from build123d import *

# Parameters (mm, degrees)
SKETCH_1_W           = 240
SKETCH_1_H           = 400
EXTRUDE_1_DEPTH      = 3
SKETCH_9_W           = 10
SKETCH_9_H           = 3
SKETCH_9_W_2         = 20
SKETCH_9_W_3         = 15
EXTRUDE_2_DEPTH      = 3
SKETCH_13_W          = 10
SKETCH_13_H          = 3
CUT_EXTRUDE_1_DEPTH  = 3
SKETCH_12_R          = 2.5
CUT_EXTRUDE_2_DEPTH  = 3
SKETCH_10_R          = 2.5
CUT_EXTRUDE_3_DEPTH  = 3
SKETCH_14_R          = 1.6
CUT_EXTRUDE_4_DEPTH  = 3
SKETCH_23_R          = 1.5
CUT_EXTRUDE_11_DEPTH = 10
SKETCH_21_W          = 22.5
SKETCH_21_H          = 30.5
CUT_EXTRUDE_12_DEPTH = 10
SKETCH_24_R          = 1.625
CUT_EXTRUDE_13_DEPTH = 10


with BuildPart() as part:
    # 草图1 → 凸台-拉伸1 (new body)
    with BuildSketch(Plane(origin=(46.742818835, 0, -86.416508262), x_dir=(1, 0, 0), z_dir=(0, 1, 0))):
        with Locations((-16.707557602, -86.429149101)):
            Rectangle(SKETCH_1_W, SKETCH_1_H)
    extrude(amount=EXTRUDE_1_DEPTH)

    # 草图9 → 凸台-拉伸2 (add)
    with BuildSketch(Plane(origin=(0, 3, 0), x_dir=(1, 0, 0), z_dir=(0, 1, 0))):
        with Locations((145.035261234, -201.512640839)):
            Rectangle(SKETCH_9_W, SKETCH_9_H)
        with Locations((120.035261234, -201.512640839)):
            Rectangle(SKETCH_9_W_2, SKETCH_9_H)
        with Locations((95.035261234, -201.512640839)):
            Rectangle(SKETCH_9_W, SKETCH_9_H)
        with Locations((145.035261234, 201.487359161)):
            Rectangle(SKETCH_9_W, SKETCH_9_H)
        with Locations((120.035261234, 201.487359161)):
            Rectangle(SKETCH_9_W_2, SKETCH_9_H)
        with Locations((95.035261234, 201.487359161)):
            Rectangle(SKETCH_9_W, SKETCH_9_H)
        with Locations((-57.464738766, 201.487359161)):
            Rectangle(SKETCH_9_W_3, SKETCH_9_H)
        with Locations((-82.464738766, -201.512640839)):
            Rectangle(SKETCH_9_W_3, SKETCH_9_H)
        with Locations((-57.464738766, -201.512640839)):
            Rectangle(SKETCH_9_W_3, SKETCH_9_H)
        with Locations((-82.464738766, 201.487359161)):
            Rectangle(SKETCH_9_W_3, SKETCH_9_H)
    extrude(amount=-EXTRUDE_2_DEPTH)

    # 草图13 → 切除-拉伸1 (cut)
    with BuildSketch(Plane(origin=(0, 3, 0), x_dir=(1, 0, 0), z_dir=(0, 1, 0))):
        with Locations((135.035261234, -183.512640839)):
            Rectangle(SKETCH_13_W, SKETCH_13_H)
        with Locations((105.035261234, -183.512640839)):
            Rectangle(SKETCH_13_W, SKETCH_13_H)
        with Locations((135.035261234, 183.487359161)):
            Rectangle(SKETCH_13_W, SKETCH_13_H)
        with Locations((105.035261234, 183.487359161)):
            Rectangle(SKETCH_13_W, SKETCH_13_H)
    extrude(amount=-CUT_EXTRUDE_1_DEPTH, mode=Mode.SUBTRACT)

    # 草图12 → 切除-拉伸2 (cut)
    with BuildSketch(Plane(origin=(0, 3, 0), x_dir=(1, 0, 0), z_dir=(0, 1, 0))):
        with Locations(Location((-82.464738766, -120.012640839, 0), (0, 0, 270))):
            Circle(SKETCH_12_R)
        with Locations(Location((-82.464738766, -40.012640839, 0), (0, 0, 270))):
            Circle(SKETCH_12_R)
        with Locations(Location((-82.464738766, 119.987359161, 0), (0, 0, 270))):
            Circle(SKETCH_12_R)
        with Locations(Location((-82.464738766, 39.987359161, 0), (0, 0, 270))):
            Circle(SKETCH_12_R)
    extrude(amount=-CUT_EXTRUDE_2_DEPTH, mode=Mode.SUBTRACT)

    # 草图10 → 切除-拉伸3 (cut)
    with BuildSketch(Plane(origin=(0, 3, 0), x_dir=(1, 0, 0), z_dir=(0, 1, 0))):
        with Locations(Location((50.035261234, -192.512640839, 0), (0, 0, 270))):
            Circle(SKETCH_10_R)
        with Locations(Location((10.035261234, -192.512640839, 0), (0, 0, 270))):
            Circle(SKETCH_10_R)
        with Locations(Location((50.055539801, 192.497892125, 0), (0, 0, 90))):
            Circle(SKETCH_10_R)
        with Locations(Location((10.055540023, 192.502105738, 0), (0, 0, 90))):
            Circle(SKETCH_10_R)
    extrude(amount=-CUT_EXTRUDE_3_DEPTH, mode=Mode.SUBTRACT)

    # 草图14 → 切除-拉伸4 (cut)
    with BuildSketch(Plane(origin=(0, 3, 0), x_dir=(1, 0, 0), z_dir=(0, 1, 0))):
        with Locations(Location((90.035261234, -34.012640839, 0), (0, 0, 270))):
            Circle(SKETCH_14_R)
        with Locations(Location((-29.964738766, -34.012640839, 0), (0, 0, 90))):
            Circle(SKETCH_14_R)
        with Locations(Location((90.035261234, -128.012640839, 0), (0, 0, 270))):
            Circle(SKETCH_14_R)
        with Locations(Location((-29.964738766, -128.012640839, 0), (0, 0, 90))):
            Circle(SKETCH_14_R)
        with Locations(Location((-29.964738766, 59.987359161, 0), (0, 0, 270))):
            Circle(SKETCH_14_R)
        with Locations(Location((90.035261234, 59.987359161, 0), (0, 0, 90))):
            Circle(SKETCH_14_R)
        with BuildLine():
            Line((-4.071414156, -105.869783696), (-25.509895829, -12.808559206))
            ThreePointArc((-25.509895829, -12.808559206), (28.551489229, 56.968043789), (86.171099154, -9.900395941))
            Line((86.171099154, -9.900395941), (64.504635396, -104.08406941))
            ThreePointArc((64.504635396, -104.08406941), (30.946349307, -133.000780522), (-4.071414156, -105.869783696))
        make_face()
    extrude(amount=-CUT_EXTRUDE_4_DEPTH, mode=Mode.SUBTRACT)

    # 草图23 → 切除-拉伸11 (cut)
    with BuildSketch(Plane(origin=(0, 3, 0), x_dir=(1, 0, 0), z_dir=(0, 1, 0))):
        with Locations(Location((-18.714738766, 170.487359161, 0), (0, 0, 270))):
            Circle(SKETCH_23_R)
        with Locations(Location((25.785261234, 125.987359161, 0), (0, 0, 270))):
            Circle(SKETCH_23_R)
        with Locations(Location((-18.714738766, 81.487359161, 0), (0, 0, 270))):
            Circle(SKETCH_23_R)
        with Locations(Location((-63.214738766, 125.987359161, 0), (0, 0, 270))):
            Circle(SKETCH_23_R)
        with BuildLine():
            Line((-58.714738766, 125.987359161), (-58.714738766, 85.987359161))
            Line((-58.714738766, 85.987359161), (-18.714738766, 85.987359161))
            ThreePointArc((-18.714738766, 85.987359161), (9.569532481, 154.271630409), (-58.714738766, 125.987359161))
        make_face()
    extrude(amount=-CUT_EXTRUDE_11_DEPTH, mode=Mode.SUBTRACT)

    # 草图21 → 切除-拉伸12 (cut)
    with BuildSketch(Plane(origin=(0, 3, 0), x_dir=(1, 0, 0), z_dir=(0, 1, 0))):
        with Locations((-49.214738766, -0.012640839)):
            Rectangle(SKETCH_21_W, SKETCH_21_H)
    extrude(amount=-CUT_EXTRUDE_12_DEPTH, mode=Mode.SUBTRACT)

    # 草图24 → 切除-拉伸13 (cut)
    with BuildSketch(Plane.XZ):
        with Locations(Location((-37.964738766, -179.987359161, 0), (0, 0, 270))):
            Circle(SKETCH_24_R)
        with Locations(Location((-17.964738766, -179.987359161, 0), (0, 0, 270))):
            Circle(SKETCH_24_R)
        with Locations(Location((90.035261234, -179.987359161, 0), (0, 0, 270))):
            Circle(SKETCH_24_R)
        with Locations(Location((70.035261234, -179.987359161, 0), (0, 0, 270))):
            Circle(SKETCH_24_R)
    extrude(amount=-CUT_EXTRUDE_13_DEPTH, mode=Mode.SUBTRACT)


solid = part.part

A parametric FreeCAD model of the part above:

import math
import FreeCAD as App
import Part
import Sketcher
Q = App.Units.Quantity

doc = App.newDocument("Part")
params = doc.addObject("Spreadsheet::Sheet", "Params")
for row, (alias, value) in enumerate([
    ("sketch1_width", "240 mm"),
    ("sketch1_height", "400 mm"),
    ("pad1_length", "3 mm"),
    ("sketch2_width", "10 mm"),
    ("sketch2_width2", "20 mm"),
    ("sketch2_width3", "15 mm"),
    ("sketch2_height", "3 mm"),
    ("pad2_length", "3 mm"),
    ("sketch3_width", "10 mm"),
    ("sketch3_height", "3 mm"),
    ("pocket1_length", "3 mm"),
    ("sketch4_diameter", "5 mm"),
    ("pocket2_length", "3 mm"),
    ("sketch5_diameter", "5 mm"),
    ("pocket3_length", "3 mm"),
    ("sketch6_radius", "35 mm"),
    ("sketch6_radius2", "57 mm"),
    ("sketch6_diameter", "3.2 mm"),
    ("pocket4_length", "3 mm"),
    ("sketch7_diameter", "3 mm"),
    ("sketch7_radius", "40 mm"),
    ("pocket5_length", "10 mm"),
    ("sketch8_width", "22.5 mm"),
    ("sketch8_height", "30.5 mm"),
    ("pocket6_length", "10 mm"),
    ("sketch9_diameter", "3.25 mm"),
    ("pocket7_length", "10 mm"),
], start=1):
    params.set(f"A{row}", alias)
    params.set(f"B{row}", "=" + value)
    params.setAlias(f"B{row}", alias)

body = doc.addObject("PartDesign::Body", "Body")

# Sketch on XZ plane
sketch1 = doc.addObject("Sketcher::SketchObject", "Sketch")
body.addObject(sketch1)
sketch1.AttachmentSupport = (doc.XZ_Plane, [""])
sketch1.MapMode = "FlatFace"
sketch1.addGeometry(Part.LineSegment(App.Vector(-90, -200, 0), App.Vector(-90, 200, 0)), False)
sketch1.addGeometry(Part.LineSegment(App.Vector(-90, 200, 0), App.Vector(150, 200, 0)), False)
sketch1.addGeometry(Part.LineSegment(App.Vector(150, 200, 0), App.Vector(150, -200, 0)), False)
sketch1.addGeometry(Part.LineSegment(App.Vector(150, -200, 0), App.Vector(-90, -200, 0)), False)
sketch1.addConstraint(Sketcher.Constraint("Coincident", 0, 2, 1, 1))
sketch1.addConstraint(Sketcher.Constraint("Coincident", 1, 2, 2, 1))
sketch1.addConstraint(Sketcher.Constraint("Coincident", 2, 2, 3, 1))
sketch1.addConstraint(Sketcher.Constraint("Coincident", 3, 2, 0, 1))
sketch1.addConstraint(Sketcher.Constraint("Vertical", 0))
sketch1.addConstraint(Sketcher.Constraint("Horizontal", 1))
sketch1.addConstraint(Sketcher.Constraint("Vertical", 2))
sketch1.addConstraint(Sketcher.Constraint("Horizontal", 3))
sketch1.addConstraint(Sketcher.Constraint("DistanceX", 1, 1, 1, 2, Q("240 mm")))
sketch1.addConstraint(Sketcher.Constraint("DistanceY", 0, 1, 0, 2, Q("400 mm")))
sketch1.addConstraint(Sketcher.Constraint("DistanceX", 0, 2, -1, 1, Q("89.964739 mm")))
sketch1.addConstraint(Sketcher.Constraint("DistanceY", -1, 1, 0, 2, Q("200.012641 mm")))
sketch1.setExpression("Constraints[8]", "Params.sketch1_width")
sketch1.setExpression("Constraints[9]", "Params.sketch1_height")
pad1 = doc.addObject("PartDesign::Pad", "Pad")
body.addObject(pad1)
pad1.Profile = sketch1
pad1.setExpression("Length", "Params.pad1_length")
pad1.Reversed = True

# Sketch on XZ plane
sketch2 = doc.addObject("Sketcher::SketchObject", "Sketch001")
body.addObject(sketch2)
sketch2.AttachmentSupport = (doc.XZ_Plane, [""])
sketch2.MapMode = "FlatFace"
sketch2.AttachmentOffset = App.Placement(App.Vector(0, 0, -3), App.Rotation())
sketch2.addGeometry(Part.LineSegment(App.Vector(140, 200, 0), App.Vector(140, 203, 0)), False)
sketch2.addGeometry(Part.LineSegment(App.Vector(140, 203, 0), App.Vector(150, 203, 0)), False)
sketch2.addGeometry(Part.LineSegment(App.Vector(150, 203, 0), App.Vector(150, 200, 0)), False)
sketch2.addGeometry(Part.LineSegment(App.Vector(150, 200, 0), App.Vector(140, 200, 0)), False)
sketch2.addGeometry(Part.LineSegment(App.Vector(110, 200, 0), App.Vector(110, 203, 0)), False)
sketch2.addGeometry(Part.LineSegment(App.Vector(110, 203, 0), App.Vector(130, 203, 0)), False)
sketch2.addGeometry(Part.LineSegment(App.Vector(130, 203, 0), App.Vector(130, 200, 0)), False)
sketch2.addGeometry(Part.LineSegment(App.Vector(130, 200, 0), App.Vector(110, 200, 0)), False)
sketch2.addGeometry(Part.LineSegment(App.Vector(90, 200, 0), App.Vector(90, 203, 0)), False)
sketch2.addGeometry(Part.LineSegment(App.Vector(90, 203, 0), App.Vector(100, 203, 0)), False)
sketch2.addGeometry(Part.LineSegment(App.Vector(100, 203, 0), App.Vector(100, 200, 0)), False)
sketch2.addGeometry(Part.LineSegment(App.Vector(100, 200, 0), App.Vector(90, 200, 0)), False)
sketch2.addGeometry(Part.LineSegment(App.Vector(140, -203, 0), App.Vector(140, -200, 0)), False)
sketch2.addGeometry(Part.LineSegment(App.Vector(140, -200, 0), App.Vector(150, -200, 0)), False)
sketch2.addGeometry(Part.LineSegment(App.Vector(150, -200, 0), App.Vector(150, -203, 0)), False)
sketch2.addGeometry(Part.LineSegment(App.Vector(150, -203, 0), App.Vector(140, -203, 0)), False)
sketch2.addGeometry(Part.LineSegment(App.Vector(110, -203, 0), App.Vector(110, -200, 0)), False)
sketch2.addGeometry(Part.LineSegment(App.Vector(110, -200, 0), App.Vector(130, -200, 0)), False)
sketch2.addGeometry(Part.LineSegment(App.Vector(130, -200, 0), App.Vector(130, -203, 0)), False)
sketch2.addGeometry(Part.LineSegment(App.Vector(130, -203, 0), App.Vector(110, -203, 0)), False)
sketch2.addGeometry(Part.LineSegment(App.Vector(90, -203, 0), App.Vector(90, -200, 0)), False)
sketch2.addGeometry(Part.LineSegment(App.Vector(90, -200, 0), App.Vector(100, -200, 0)), False)
sketch2.addGeometry(Part.LineSegment(App.Vector(100, -200, 0), App.Vector(100, -203, 0)), False)
sketch2.addGeometry(Part.LineSegment(App.Vector(100, -203, 0), App.Vector(90, -203, 0)), False)
sketch2.addGeometry(Part.LineSegment(App.Vector(-65, -203, 0), App.Vector(-65, -200, 0)), False)
sketch2.addGeometry(Part.LineSegment(App.Vector(-65, -200, 0), App.Vector(-50, -200, 0)), False)
sketch2.addGeometry(Part.LineSegment(App.Vector(-50, -200, 0), App.Vector(-50, -203, 0)), False)
sketch2.addGeometry(Part.LineSegment(App.Vector(-50, -203, 0), App.Vector(-65, -203, 0)), False)
sketch2.addGeometry(Part.LineSegment(App.Vector(-90, 200, 0), App.Vector(-90, 203, 0)), False)
sketch2.addGeometry(Part.LineSegment(App.Vector(-90, 203, 0), App.Vector(-75, 203, 0)), False)
sketch2.addGeometry(Part.LineSegment(App.Vector(-75, 203, 0), App.Vector(-75, 200, 0)), False)
sketch2.addGeometry(Part.LineSegment(App.Vector(-75, 200, 0), App.Vector(-90, 200, 0)), False)
sketch2.addGeometry(Part.LineSegment(App.Vector(-65, 200, 0), App.Vector(-65, 203, 0)), False)
sketch2.addGeometry(Part.LineSegment(App.Vector(-65, 203, 0), App.Vector(-50, 203, 0)), False)
sketch2.addGeometry(Part.LineSegment(App.Vector(-50, 203, 0), App.Vector(-50, 200, 0)), False)
sketch2.addGeometry(Part.LineSegment(App.Vector(-50, 200, 0), App.Vector(-65, 200, 0)), False)
sketch2.addGeometry(Part.LineSegment(App.Vector(-90, -203, 0), App.Vector(-90, -200, 0)), False)
sketch2.addGeometry(Part.LineSegment(App.Vector(-90, -200, 0), App.Vector(-75, -200, 0)), False)
sketch2.addGeometry(Part.LineSegment(App.Vector(-75, -200, 0), App.Vector(-75, -203, 0)), False)
sketch2.addGeometry(Part.LineSegment(App.Vector(-75, -203, 0), App.Vector(-90, -203, 0)), False)
sketch2.addConstraint(Sketcher.Constraint("Coincident", 0, 2, 1, 1))
sketch2.addConstraint(Sketcher.Constraint("Coincident", 1, 2, 2, 1))
sketch2.addConstraint(Sketcher.Constraint("Coincident", 2, 2, 3, 1))
sketch2.addConstraint(Sketcher.Constraint("Coincident", 3, 2, 0, 1))
sketch2.addConstraint(Sketcher.Constraint("Coincident", 4, 2, 5, 1))
sketch2.addConstraint(Sketcher.Constraint("Coincident", 5, 2, 6, 1))
sketch2.addConstraint(Sketcher.Constraint("Coincident", 6, 2, 7, 1))
sketch2.addConstraint(Sketcher.Constraint("Coincident", 7, 2, 4, 1))
sketch2.addConstraint(Sketcher.Constraint("Coincident", 8, 2, 9, 1))
sketch2.addConstraint(Sketcher.Constraint("Coincident", 9, 2, 10, 1))
sketch2.addConstraint(Sketcher.Constraint("Coincident", 10, 2, 11, 1))
sketch2.addConstraint(Sketcher.Constraint("Coincident", 11, 2, 8, 1))
sketch2.addConstraint(Sketcher.Constraint("Coincident", 12, 2, 13, 1))
sketch2.addConstraint(Sketcher.Constraint("Coincident", 13, 2, 14, 1))
sketch2.addConstraint(Sketcher.Constraint("Coincident", 14, 2, 15, 1))
sketch2.addConstraint(Sketcher.Constraint("Coincident", 15, 2, 12, 1))
sketch2.addConstraint(Sketcher.Constraint("Coincident", 16, 2, 17, 1))
sketch2.addConstraint(Sketcher.Constraint("Coincident", 17, 2, 18, 1))
sketch2.addConstraint(Sketcher.Constraint("Coincident", 18, 2, 19, 1))
sketch2.addConstraint(Sketcher.Constraint("Coincident", 19, 2, 16, 1))
sketch2.addConstraint(Sketcher.Constraint("Coincident", 20, 2, 21, 1))
sketch2.addConstraint(Sketcher.Constraint("Coincident", 21, 2, 22, 1))
sketch2.addConstraint(Sketcher.Constraint("Coincident", 22, 2, 23, 1))
sketch2.addConstraint(Sketcher.Constraint("Coincident", 23, 2, 20, 1))
sketch2.addConstraint(Sketcher.Constraint("Coincident", 24, 2, 25, 1))
sketch2.addConstraint(Sketcher.Constraint("Coincident", 25, 2, 26, 1))
sketch2.addConstraint(Sketcher.Constraint("Coincident", 26, 2, 27, 1))
sketch2.addConstraint(Sketcher.Constraint("Coincident", 27, 2, 24, 1))
sketch2.addConstraint(Sketcher.Constraint("Coincident", 28, 2, 29, 1))
sketch2.addConstraint(Sketcher.Constraint("Coincident", 29, 2, 30, 1))
sketch2.addConstraint(Sketcher.Constraint("Coincident", 30, 2, 31, 1))
sketch2.addConstraint(Sketcher.Constraint("Coincident", 31, 2, 28, 1))
sketch2.addConstraint(Sketcher.Constraint("Coincident", 32, 2, 33, 1))
sketch2.addConstraint(Sketcher.Constraint("Coincident", 33, 2, 34, 1))
sketch2.addConstraint(Sketcher.Constraint("Coincident", 34, 2, 35, 1))
sketch2.addConstraint(Sketcher.Constraint("Coincident", 35, 2, 32, 1))
sketch2.addConstraint(Sketcher.Constraint("Coincident", 36, 2, 37, 1))
sketch2.addConstraint(Sketcher.Constraint("Coincident", 37, 2, 38, 1))
sketch2.addConstraint(Sketcher.Constraint("Coincident", 38, 2, 39, 1))
sketch2.addConstraint(Sketcher.Constraint("Coincident", 39, 2, 36, 1))
sketch2.addConstraint(Sketcher.Constraint("Vertical", 0))
sketch2.addConstraint(Sketcher.Constraint("Horizontal", 1))
sketch2.addConstraint(Sketcher.Constraint("Vertical", 2))
sketch2.addConstraint(Sketcher.Constraint("Horizontal", 3))
sketch2.addConstraint(Sketcher.Constraint("Vertical", 4))
sketch2.addConstraint(Sketcher.Constraint("Horizontal", 5))
sketch2.addConstraint(Sketcher.Constraint("Vertical", 6))
sketch2.addConstraint(Sketcher.Constraint("Horizontal", 7))
sketch2.addConstraint(Sketcher.Constraint("Vertical", 8))
sketch2.addConstraint(Sketcher.Constraint("Horizontal", 9))
sketch2.addConstraint(Sketcher.Constraint("Vertical", 10))
sketch2.addConstraint(Sketcher.Constraint("Horizontal", 11))
sketch2.addConstraint(Sketcher.Constraint("Vertical", 12))
sketch2.addConstraint(Sketcher.Constraint("Horizontal", 13))
sketch2.addConstraint(Sketcher.Constraint("Vertical", 14))
sketch2.addConstraint(Sketcher.Constraint("Horizontal", 15))
sketch2.addConstraint(Sketcher.Constraint("Vertical", 16))
sketch2.addConstraint(Sketcher.Constraint("Horizontal", 17))
sketch2.addConstraint(Sketcher.Constraint("Vertical", 18))
sketch2.addConstraint(Sketcher.Constraint("Horizontal", 19))
sketch2.addConstraint(Sketcher.Constraint("Vertical", 20))
sketch2.addConstraint(Sketcher.Constraint("Horizontal", 21))
sketch2.addConstraint(Sketcher.Constraint("Vertical", 22))
sketch2.addConstraint(Sketcher.Constraint("Horizontal", 23))
sketch2.addConstraint(Sketcher.Constraint("Vertical", 24))
sketch2.addConstraint(Sketcher.Constraint("Horizontal", 25))
sketch2.addConstraint(Sketcher.Constraint("Vertical", 26))
sketch2.addConstraint(Sketcher.Constraint("Horizontal", 27))
sketch2.addConstraint(Sketcher.Constraint("Vertical", 28))
sketch2.addConstraint(Sketcher.Constraint("Horizontal", 29))
sketch2.addConstraint(Sketcher.Constraint("Vertical", 30))
sketch2.addConstraint(Sketcher.Constraint("Horizontal", 31))
sketch2.addConstraint(Sketcher.Constraint("Vertical", 32))
sketch2.addConstraint(Sketcher.Constraint("Horizontal", 33))
sketch2.addConstraint(Sketcher.Constraint("Vertical", 34))
sketch2.addConstraint(Sketcher.Constraint("Horizontal", 35))
sketch2.addConstraint(Sketcher.Constraint("Vertical", 36))
sketch2.addConstraint(Sketcher.Constraint("Horizontal", 37))
sketch2.addConstraint(Sketcher.Constraint("Vertical", 38))
sketch2.addConstraint(Sketcher.Constraint("Horizontal", 39))
sketch2.addConstraint(Sketcher.Constraint("Horizontal", 1, 2, 4, 2))
sketch2.addConstraint(Sketcher.Constraint("Horizontal", 3, 2, 6, 2))
sketch2.addConstraint(Sketcher.Constraint("Horizontal", 5, 2, 8, 2))
sketch2.addConstraint(Sketcher.Constraint("Horizontal", 7, 2, 10, 2))
sketch2.addConstraint(Sketcher.Constraint("Horizontal", 13, 2, 16, 2))
sketch2.addConstraint(Sketcher.Constraint("Horizontal", 15, 2, 18, 2))
sketch2.addConstraint(Sketcher.Constraint("Horizontal", 17, 2, 20, 2))
sketch2.addConstraint(Sketcher.Constraint("Horizontal", 19, 2, 22, 2))
sketch2.addConstraint(Sketcher.Constraint("Horizontal", 21, 2, 24, 2))
sketch2.addConstraint(Sketcher.Constraint("Horizontal", 23, 2, 26, 2))
sketch2.addConstraint(Sketcher.Constraint("Horizontal", 9, 2, 28, 2))
sketch2.addConstraint(Sketcher.Constraint("Horizontal", 11, 2, 30, 2))
sketch2.addConstraint(Sketcher.Constraint("Horizontal", 29, 2, 32, 2))
sketch2.addConstraint(Sketcher.Constraint("Horizontal", 31, 2, 34, 2))
sketch2.addConstraint(Sketcher.Constraint("Horizontal", 25, 2, 36, 2))
sketch2.addConstraint(Sketcher.Constraint("Horizontal", 27, 2, 38, 2))
sketch2.addConstraint(Sketcher.Constraint("Vertical", 3, 2, 12, 2))
sketch2.addConstraint(Sketcher.Constraint("Vertical", 2, 2, 13, 2))
sketch2.addConstraint(Sketcher.Constraint("Vertical", 7, 2, 16, 2))
sketch2.addConstraint(Sketcher.Constraint("Vertical", 6, 2, 17, 2))
sketch2.addConstraint(Sketcher.Constraint("Vertical", 11, 2, 20, 2))
sketch2.addConstraint(Sketcher.Constraint("Vertical", 10, 2, 21, 2))
sketch2.addConstraint(Sketcher.Constraint("Vertical", 27, 2, 32, 2))
sketch2.addConstraint(Sketcher.Constraint("Vertical", 26, 2, 33, 2))
sketch2.addConstraint(Sketcher.Constraint("Vertical", 31, 2, 36, 2))
sketch2.addConstraint(Sketcher.Constraint("Vertical", 30, 2, 37, 2))
sketch2.addConstraint(Sketcher.Constraint("Equal", 3, 9))
sketch2.addConstraint(Sketcher.Constraint("Equal", 27, 29))
sketch2.addConstraint(Sketcher.Constraint("Equal", 10, 12))
sketch2.addConstraint(Sketcher.Constraint("DistanceX", 1, 1, 1, 2, Q("10 mm")))
sketch2.addConstraint(Sketcher.Constraint("DistanceX", 5, 1, 5, 2, Q("20 mm")))
sketch2.addConstraint(Sketcher.Constraint("DistanceX", 25, 1, 25, 2, Q("15 mm")))
sketch2.addConstraint(Sketcher.Constraint("DistanceY", 0, 1, 0, 2, Q("3 mm")))
sketch2.addConstraint(Sketcher.Constraint("DistanceX", 4, 2, 0, 2, Q("30 mm")))
sketch2.addConstraint(Sketcher.Constraint("DistanceX", 8, 2, 4, 2, Q("20 mm")))
sketch2.addConstraint(Sketcher.Constraint("DistanceY", 12, 2, 3, 2, Q("400 mm")))
sketch2.addConstraint(Sketcher.Constraint("DistanceX", 24, 2, 20, 2, Q("155 mm")))
sketch2.addConstraint(Sketcher.Constraint("DistanceX", 28, 2, 8, 2, Q("180 mm")))
sketch2.addConstraint(Sketcher.Constraint("DistanceX", -1, 1, 0, 2, Q("140.035261 mm")))
sketch2.addConstraint(Sketcher.Constraint("DistanceY", -1, 1, 0, 2, Q("203.012641 mm")))
sketch2.setExpression("Constraints[109]", "Params.sketch2_width")
sketch2.setExpression("Constraints[110]", "Params.sketch2_width2")
sketch2.setExpression("Constraints[111]", "Params.sketch2_width3")
sketch2.setExpression("Constraints[112]", "Params.sketch2_height")
pad2 = doc.addObject("PartDesign::Pad", "Pad001")
body.addObject(pad2)
pad2.Profile = sketch2
pad2.setExpression("Length", "Params.pad2_length")

# Sketch on XZ plane
sketch3 = doc.addObject("Sketcher::SketchObject", "Sketch002")
body.addObject(sketch3)
sketch3.AttachmentSupport = (doc.XZ_Plane, [""])
sketch3.MapMode = "FlatFace"
sketch3.AttachmentOffset = App.Placement(App.Vector(0, 0, -3), App.Rotation())
sketch3.addGeometry(Part.LineSegment(App.Vector(130, 182, 0), App.Vector(130, 185, 0)), False)
sketch3.addGeometry(Part.LineSegment(App.Vector(130, 185, 0), App.Vector(140, 185, 0)), False)
sketch3.addGeometry(Part.LineSegment(App.Vector(140, 185, 0), App.Vector(140, 182, 0)), False)
sketch3.addGeometry(Part.LineSegment(App.Vector(140, 182, 0), App.Vector(130, 182, 0)), False)
sketch3.addGeometry(Part.LineSegment(App.Vector(100, 182, 0), App.Vector(100, 185, 0)), False)
sketch3.addGeometry(Part.LineSegment(App.Vector(100, 185, 0), App.Vector(110, 185, 0)), False)
sketch3.addGeometry(Part.LineSegment(App.Vector(110, 185, 0), App.Vector(110, 182, 0)), False)
sketch3.addGeometry(Part.LineSegment(App.Vector(110, 182, 0), App.Vector(100, 182, 0)), False)
sketch3.addGeometry(Part.LineSegment(App.Vector(130, -185, 0), App.Vector(130, -182, 0)), False)
sketch3.addGeometry(Part.LineSegment(App.Vector(130, -182, 0), App.Vector(140, -182, 0)), False)
sketch3.addGeometry(Part.LineSegment(App.Vector(140, -182, 0), App.Vector(140, -185, 0)), False)
sketch3.addGeometry(Part.LineSegment(App.Vector(140, -185, 0), App.Vector(130, -185, 0)), False)
sketch3.addGeometry(Part.LineSegment(App.Vector(100, -185, 0), App.Vector(100, -182, 0)), False)
sketch3.addGeometry(Part.LineSegment(App.Vector(100, -182, 0), App.Vector(110, -182, 0)), False)
sketch3.addGeometry(Part.LineSegment(App.Vector(110, -182, 0), App.Vector(110, -185, 0)), False)
sketch3.addGeometry(Part.LineSegment(App.Vector(110, -185, 0), App.Vector(100, -185, 0)), False)
sketch3.addConstraint(Sketcher.Constraint("Coincident", 0, 2, 1, 1))
sketch3.addConstraint(Sketcher.Constraint("Coincident", 1, 2, 2, 1))
sketch3.addConstraint(Sketcher.Constraint("Coincident", 2, 2, 3, 1))
sketch3.addConstraint(Sketcher.Constraint("Coincident", 3, 2, 0, 1))
sketch3.addConstraint(Sketcher.Constraint("Coincident", 4, 2, 5, 1))
sketch3.addConstraint(Sketcher.Constraint("Coincident", 5, 2, 6, 1))
sketch3.addConstraint(Sketcher.Constraint("Coincident", 6, 2, 7, 1))
sketch3.addConstraint(Sketcher.Constraint("Coincident", 7, 2, 4, 1))
sketch3.addConstraint(Sketcher.Constraint("Coincident", 8, 2, 9, 1))
sketch3.addConstraint(Sketcher.Constraint("Coincident", 9, 2, 10, 1))
sketch3.addConstraint(Sketcher.Constraint("Coincident", 10, 2, 11, 1))
sketch3.addConstraint(Sketcher.Constraint("Coincident", 11, 2, 8, 1))
sketch3.addConstraint(Sketcher.Constraint("Coincident", 12, 2, 13, 1))
sketch3.addConstraint(Sketcher.Constraint("Coincident", 13, 2, 14, 1))
sketch3.addConstraint(Sketcher.Constraint("Coincident", 14, 2, 15, 1))
sketch3.addConstraint(Sketcher.Constraint("Coincident", 15, 2, 12, 1))
sketch3.addConstraint(Sketcher.Constraint("Vertical", 0))
sketch3.addConstraint(Sketcher.Constraint("Horizontal", 1))
sketch3.addConstraint(Sketcher.Constraint("Vertical", 2))
sketch3.addConstraint(Sketcher.Constraint("Horizontal", 3))
sketch3.addConstraint(Sketcher.Constraint("Vertical", 4))
sketch3.addConstraint(Sketcher.Constraint("Horizontal", 5))
sketch3.addConstraint(Sketcher.Constraint("Vertical", 6))
sketch3.addConstraint(Sketcher.Constraint("Horizontal", 7))
sketch3.addConstraint(Sketcher.Constraint("Vertical", 8))
sketch3.addConstraint(Sketcher.Constraint("Horizontal", 9))
sketch3.addConstraint(Sketcher.Constraint("Vertical", 10))
sketch3.addConstraint(Sketcher.Constraint("Horizontal", 11))
sketch3.addConstraint(Sketcher.Constraint("Vertical", 12))
sketch3.addConstraint(Sketcher.Constraint("Horizontal", 13))
sketch3.addConstraint(Sketcher.Constraint("Vertical", 14))
sketch3.addConstraint(Sketcher.Constraint("Horizontal", 15))
sketch3.addConstraint(Sketcher.Constraint("Horizontal", 1, 2, 4, 2))
sketch3.addConstraint(Sketcher.Constraint("Horizontal", 3, 2, 6, 2))
sketch3.addConstraint(Sketcher.Constraint("Horizontal", 9, 2, 12, 2))
sketch3.addConstraint(Sketcher.Constraint("Horizontal", 11, 2, 14, 2))
sketch3.addConstraint(Sketcher.Constraint("Vertical", 3, 2, 8, 2))
sketch3.addConstraint(Sketcher.Constraint("Vertical", 2, 2, 9, 2))
sketch3.addConstraint(Sketcher.Constraint("Vertical", 7, 2, 12, 2))
sketch3.addConstraint(Sketcher.Constraint("Vertical", 6, 2, 13, 2))
sketch3.addConstraint(Sketcher.Constraint("Equal", 3, 5))
sketch3.addConstraint(Sketcher.Constraint("Equal", 6, 8))
sketch3.addConstraint(Sketcher.Constraint("DistanceX", 1, 1, 1, 2, Q("10 mm")))
sketch3.addConstraint(Sketcher.Constraint("DistanceY", 0, 1, 0, 2, Q("3 mm")))
sketch3.addConstraint(Sketcher.Constraint("DistanceX", 4, 2, 0, 2, Q("30 mm")))
sketch3.addConstraint(Sketcher.Constraint("DistanceY", 8, 2, 3, 2, Q("364 mm")))
sketch3.addConstraint(Sketcher.Constraint("DistanceX", -1, 1, 0, 2, Q("130.035261 mm")))
sketch3.addConstraint(Sketcher.Constraint("DistanceY", -1, 1, 0, 2, Q("185.012641 mm")))
sketch3.setExpression("Constraints[42]", "Params.sketch3_width")
sketch3.setExpression("Constraints[43]", "Params.sketch3_height")
pocket1 = doc.addObject("PartDesign::Pocket", "Pocket")
body.addObject(pocket1)
pocket1.Profile = sketch3
pocket1.setExpression("Length", "Params.pocket1_length")
pocket1.Reversed = True

# Sketch on XZ plane
sketch4 = doc.addObject("Sketcher::SketchObject", "Sketch003")
body.addObject(sketch4)
sketch4.AttachmentSupport = (doc.XZ_Plane, [""])
sketch4.MapMode = "FlatFace"
sketch4.AttachmentOffset = App.Placement(App.Vector(0, 0, -3), App.Rotation())
sketch4.addGeometry(Part.Circle(App.Vector(-82.5, 120, 0), App.Vector(0, 0, 1), 2.5), False)
sketch4.addGeometry(Part.Circle(App.Vector(-82.5, 40, 0), App.Vector(0, 0, 1), 2.5), False)
sketch4.addGeometry(Part.Circle(App.Vector(-82.5, -120, 0), App.Vector(0, 0, 1), 2.5), False)
sketch4.addGeometry(Part.Circle(App.Vector(-82.5, -40, 0), App.Vector(0, 0, 1), 2.5), False)
sketch4.addConstraint(Sketcher.Constraint("Equal", 0, 1))
sketch4.addConstraint(Sketcher.Constraint("Equal", 1, 2))
sketch4.addConstraint(Sketcher.Constraint("Equal", 2, 3))
sketch4.addConstraint(Sketcher.Constraint("Vertical", 0, 3, 1, 3))
sketch4.addConstraint(Sketcher.Constraint("Vertical", 1, 3, 2, 3))
sketch4.addConstraint(Sketcher.Constraint("Vertical", 2, 3, 3, 3))
sketch4.addConstraint(Sketcher.Constraint("Diameter", 0, Q("5 mm")))
sketch4.addConstraint(Sketcher.Constraint("DistanceY", 1, 3, 0, 3, Q("80 mm")))
sketch4.addConstraint(Sketcher.Constraint("DistanceY", 2, 3, 1, 3, Q("160 mm")))
sketch4.addConstraint(Sketcher.Constraint("DistanceY", 3, 3, 1, 3, Q("80 mm")))
sketch4.addConstraint(Sketcher.Constraint("DistanceX", 0, 3, -1, 1, Q("82.464739 mm")))
sketch4.addConstraint(Sketcher.Constraint("DistanceY", -1, 1, 0, 3, Q("120.012641 mm")))
sketch4.setExpression("Constraints[6]", "Params.sketch4_diameter")
pocket2 = doc.addObject("PartDesign::Pocket", "Pocket001")
body.addObject(pocket2)
pocket2.Profile = sketch4
pocket2.setExpression("Length", "Params.pocket2_length")
pocket2.Reversed = True

# Sketch on XZ plane
sketch5 = doc.addObject("Sketcher::SketchObject", "Sketch004")
body.addObject(sketch5)
sketch5.AttachmentSupport = (doc.XZ_Plane, [""])
sketch5.MapMode = "FlatFace"
sketch5.AttachmentOffset = App.Placement(App.Vector(0, 0, -3), App.Rotation())
sketch5.addGeometry(Part.Circle(App.Vector(50, 192.5, 0), App.Vector(0, 0, 1), 2.5), False)
sketch5.addGeometry(Part.Circle(App.Vector(10, 192.5, 0), App.Vector(0, 0, 1), 2.5), False)
sketch5.addGeometry(Part.Circle(App.Vector(50.1, -192.5, 0), App.Vector(0, 0, 1), 2.5), False)
sketch5.addGeometry(Part.Circle(App.Vector(10.1, -192.5, 0), App.Vector(0, 0, 1), 2.5), False)
sketch5.addConstraint(Sketcher.Constraint("Equal", 0, 1))
sketch5.addConstraint(Sketcher.Constraint("Equal", 1, 2))
sketch5.addConstraint(Sketcher.Constraint("Equal", 2, 3))
sketch5.addConstraint(Sketcher.Constraint("Horizontal", 0, 3, 1, 3))
sketch5.addConstraint(Sketcher.Constraint("Diameter", 0, Q("5 mm")))
sketch5.addConstraint(Sketcher.Constraint("DistanceX", 1, 3, 0, 3, Q("40 mm")))
sketch5.addConstraint(Sketcher.Constraint("DistanceX", 3, 3, 2, 3, Q("40 mm")))
sketch5.addConstraint(Sketcher.Constraint("DistanceX", -1, 1, 0, 3, Q("50.035261 mm")))
sketch5.addConstraint(Sketcher.Constraint("DistanceY", -1, 1, 0, 3, Q("192.512641 mm")))
sketch5.addConstraint(Sketcher.Constraint("DistanceX", -1, 1, 2, 3, Q("50.05554 mm")))
sketch5.addConstraint(Sketcher.Constraint("DistanceY", 2, 3, -1, 1, Q("192.497892 mm")))
sketch5.addConstraint(Sketcher.Constraint("DistanceY", 3, 3, -1, 1, Q("192.502106 mm")))
sketch5.setExpression("Constraints[4]", "Params.sketch5_diameter")
pocket3 = doc.addObject("PartDesign::Pocket", "Pocket002")
body.addObject(pocket3)
pocket3.Profile = sketch5
pocket3.setExpression("Length", "Params.pocket3_length")
pocket3.Reversed = True

# Sketch on XZ plane
sketch6 = doc.addObject("Sketcher::SketchObject", "Sketch005")
body.addObject(sketch6)
sketch6.AttachmentSupport = (doc.XZ_Plane, [""])
sketch6.MapMode = "FlatFace"
sketch6.AttachmentOffset = App.Placement(App.Vector(0, 0, -3), App.Rotation())
sketch6.addGeometry(Part.Circle(App.Vector(90, 34, 0), App.Vector(0, 0, 1), 1.6), False)
sketch6.addGeometry(Part.Circle(App.Vector(-30, 34, 0), App.Vector(0, 0, 1), 1.6), False)
sketch6.addGeometry(Part.Circle(App.Vector(90, 128, 0), App.Vector(0, 0, 1), 1.6), False)
sketch6.addGeometry(Part.Circle(App.Vector(-30, 128, 0), App.Vector(0, 0, 1), 1.6), False)
sketch6.addGeometry(Part.Circle(App.Vector(-30, -60, 0), App.Vector(0, 0, 1), 1.6), False)
sketch6.addGeometry(Part.Circle(App.Vector(90, -60, 0), App.Vector(0, 0, 1), 1.6), False)
sketch6.addGeometry(Part.LineSegment(App.Vector(-25.5, 12.8, 0), App.Vector(-4.1, 105.9, 0)), False)
sketch6.addGeometry(Part.ArcOfCircle(Part.Circle(App.Vector(30, 98, 0), App.Vector(0, 0, 1), 35), math.radians(10), math.radians(167)), False)
sketch6.addGeometry(Part.LineSegment(App.Vector(64.5, 104.1, 0), App.Vector(86.2, 9.9, 0)), False)
sketch6.addGeometry(Part.ArcOfCircle(Part.Circle(App.Vector(30, 0, 0), App.Vector(0, 0, 1), 57), math.radians(167), math.radians(370)), False)
sketch6.addConstraint(Sketcher.Constraint("Tangent", 6, 2, 7, 2))
sketch6.addConstraint(Sketcher.Constraint("Coincident", 7, 1, 8, 1))
sketch6.addConstraint(Sketcher.Constraint("Coincident", 8, 2, 9, 2))
sketch6.addConstraint(Sketcher.Constraint("Tangent", 9, 1, 6, 1))
sketch6.addConstraint(Sketcher.Constraint("Equal", 0, 1))
sketch6.addConstraint(Sketcher.Constraint("Equal", 1, 2))
sketch6.addConstraint(Sketcher.Constraint("Equal", 2, 3))
sketch6.addConstraint(Sketcher.Constraint("Equal", 3, 4))
sketch6.addConstraint(Sketcher.Constraint("Equal", 4, 5))
sketch6.addConstraint(Sketcher.Constraint("Horizontal", 0, 3, 1, 3))
sketch6.addConstraint(Sketcher.Constraint("Horizontal", 2, 3, 3, 3))
sketch6.addConstraint(Sketcher.Constraint("Horizontal", 4, 3, 5, 3))
sketch6.addConstraint(Sketcher.Constraint("Vertical", 0, 3, 2, 3))
sketch6.addConstraint(Sketcher.Constraint("Vertical", 1, 3, 3, 3))
sketch6.addConstraint(Sketcher.Constraint("Vertical", 3, 3, 4, 3))
sketch6.addConstraint(Sketcher.Constraint("Vertical", 2, 3, 5, 3))
sketch6.addConstraint(Sketcher.Constraint("Vertical", 7, 3, 9, 3))
sketch6.addConstraint(Sketcher.Constraint("Radius", 7, Q("35 mm")))
sketch6.addConstraint(Sketcher.Constraint("Radius", 9, Q("57 mm")))
sketch6.addConstraint(Sketcher.Constraint("Diameter", 0, Q("3.2 mm")))
sketch6.addConstraint(Sketcher.Constraint("DistanceX", 1, 3, 0, 3, Q("120 mm")))
sketch6.addConstraint(Sketcher.Constraint("DistanceY", 0, 3, 2, 3, Q("94 mm")))
sketch6.addConstraint(Sketcher.Constraint("DistanceY", 4, 3, 1, 3, Q("94 mm")))
sketch6.addConstraint(Sketcher.Constraint("DistanceX", 7, 3, 2, 3, Q("60 mm")))
sketch6.addConstraint(Sketcher.Constraint("DistanceY", 7, 3, 2, 3, Q("30 mm")))
sketch6.addConstraint(Sketcher.Constraint("DistanceY", 9, 3, 0, 3, Q("34 mm")))
sketch6.addConstraint(Sketcher.Constraint("DistanceX", -1, 1, 8, 2, Q("86.171099 mm")))
sketch6.addConstraint(Sketcher.Constraint("DistanceX", -1, 1, 0, 3, Q("90.035261 mm")))
sketch6.addConstraint(Sketcher.Constraint("DistanceY", -1, 1, 0, 3, Q("34.012641 mm")))
sketch6.addConstraint(Sketcher.Constraint("DistanceY", -1, 1, 7, 1, Q("104.084069 mm")))
sketch6.setExpression("Constraints[17]", "Params.sketch6_radius")
sketch6.setExpression("Constraints[18]", "Params.sketch6_radius2")
sketch6.setExpression("Constraints[19]", "Params.sketch6_diameter")
pocket4 = doc.addObject("PartDesign::Pocket", "Pocket003")
body.addObject(pocket4)
pocket4.Profile = sketch6
pocket4.setExpression("Length", "Params.pocket4_length")
pocket4.Reversed = True

# Sketch on XZ plane
sketch7 = doc.addObject("Sketcher::SketchObject", "Sketch006")
body.addObject(sketch7)
sketch7.AttachmentSupport = (doc.XZ_Plane, [""])
sketch7.MapMode = "FlatFace"
sketch7.AttachmentOffset = App.Placement(App.Vector(0, 0, -3), App.Rotation())
sketch7.addGeometry(Part.Circle(App.Vector(-18.7, -170.5, 0), App.Vector(0, 0, 1), 1.5), False)
sketch7.addGeometry(Part.Circle(App.Vector(25.8, -126, 0), App.Vector(0, 0, 1), 1.5), False)
sketch7.addGeometry(Part.Circle(App.Vector(-18.7, -81.5, 0), App.Vector(0, 0, 1), 1.5), False)
sketch7.addGeometry(Part.Circle(App.Vector(-63.2, -126, 0), App.Vector(0, 0, 1), 1.5), False)
sketch7.addGeometry(Part.LineSegment(App.Vector(-58.7, -126, 0), App.Vector(-58.7, -86, 0)), False)
sketch7.addGeometry(Part.LineSegment(App.Vector(-58.7, -86, 0), App.Vector(-18.7, -86, 0)), False)
sketch7.addGeometry(Part.ArcOfCircle(Part.Circle(App.Vector(-18.7, -126, 0), App.Vector(0, 0, 1), 40), math.radians(180), math.radians(450)), False)
sketch7.addConstraint(Sketcher.Constraint("Coincident", 4, 2, 5, 1))
sketch7.addConstraint(Sketcher.Constraint("Tangent", 5, 2, 6, 2))
sketch7.addConstraint(Sketcher.Constraint("Tangent", 6, 1, 4, 1))
sketch7.addConstraint(Sketcher.Constraint("Vertical", 4))
sketch7.addConstraint(Sketcher.Constraint("Horizontal", 5))
sketch7.addConstraint(Sketcher.Constraint("Equal", 0, 1))
sketch7.addConstraint(Sketcher.Constraint("Equal", 1, 2))
sketch7.addConstraint(Sketcher.Constraint("Equal", 2, 3))
sketch7.addConstraint(Sketcher.Constraint("Horizontal", 1, 3, 3, 3))
sketch7.addConstraint(Sketcher.Constraint("Horizontal", 3, 3, 6, 3))
sketch7.addConstraint(Sketcher.Constraint("Vertical", 0, 3, 2, 3))
sketch7.addConstraint(Sketcher.Constraint("Vertical", 2, 3, 6, 3))
sketch7.addConstraint(Sketcher.Constraint("Diameter", 0, Q("3 mm")))
sketch7.addConstraint(Sketcher.Constraint("Radius", 6, Q("40 mm")))
sketch7.addConstraint(Sketcher.Constraint("DistanceY", 0, 3, 2, 3, Q("89 mm")))
sketch7.addConstraint(Sketcher.Constraint("DistanceX", 3, 3, 1, 3, Q("89 mm")))
sketch7.addConstraint(Sketcher.Constraint("DistanceX", 0, 3, 1, 3, Q("44.5 mm")))
sketch7.addConstraint(Sketcher.Constraint("DistanceY", 0, 3, 1, 3, Q("44.5 mm")))
sketch7.addConstraint(Sketcher.Constraint("DistanceX", 0, 3, -1, 1, Q("18.714739 mm")))
sketch7.addConstraint(Sketcher.Constraint("DistanceY", 0, 3, -1, 1, Q("170.487359 mm")))
sketch7.setExpression("Constraints[12]", "Params.sketch7_diameter")
sketch7.setExpression("Constraints[13]", "Params.sketch7_radius")
pocket5 = doc.addObject("PartDesign::Pocket", "Pocket004")
body.addObject(pocket5)
pocket5.Profile = sketch7
pocket5.setExpression("Length", "Params.pocket5_length")
pocket5.Reversed = True

# Sketch on XZ plane
sketch8 = doc.addObject("Sketcher::SketchObject", "Sketch007")
body.addObject(sketch8)
sketch8.AttachmentSupport = (doc.XZ_Plane, [""])
sketch8.MapMode = "FlatFace"
sketch8.AttachmentOffset = App.Placement(App.Vector(0, 0, -3), App.Rotation())
sketch8.addGeometry(Part.LineSegment(App.Vector(-60, -15, 0), App.Vector(-60, 15, 0)), False)
sketch8.addGeometry(Part.LineSegment(App.Vector(-60, 15, 0), App.Vector(-38, 15, 0)), False)
sketch8.addGeometry(Part.LineSegment(App.Vector(-38, 15, 0), App.Vector(-38, -15, 0)), False)
sketch8.addGeometry(Part.LineSegment(App.Vector(-38, -15, 0), App.Vector(-60, -15, 0)), False)
sketch8.addConstraint(Sketcher.Constraint("Coincident", 0, 2, 1, 1))
sketch8.addConstraint(Sketcher.Constraint("Coincident", 1, 2, 2, 1))
sketch8.addConstraint(Sketcher.Constraint("Coincident", 2, 2, 3, 1))
sketch8.addConstraint(Sketcher.Constraint("Coincident", 3, 2, 0, 1))
sketch8.addConstraint(Sketcher.Constraint("Vertical", 0))
sketch8.addConstraint(Sketcher.Constraint("Horizontal", 1))
sketch8.addConstraint(Sketcher.Constraint("Vertical", 2))
sketch8.addConstraint(Sketcher.Constraint("Horizontal", 3))
sketch8.addConstraint(Sketcher.Constraint("DistanceX", 1, 1, 1, 2, Q("22.5 mm")))
sketch8.addConstraint(Sketcher.Constraint("DistanceY", 0, 1, 0, 2, Q("30.5 mm")))
sketch8.addConstraint(Sketcher.Constraint("DistanceX", 0, 2, -1, 1, Q("60.464739 mm")))
sketch8.addConstraint(Sketcher.Constraint("DistanceY", -1, 1, 0, 2, Q("15.262641 mm")))
sketch8.setExpression("Constraints[8]", "Params.sketch8_width")
sketch8.setExpression("Constraints[9]", "Params.sketch8_height")
pocket6 = doc.addObject("PartDesign::Pocket", "Pocket005")
body.addObject(pocket6)
pocket6.Profile = sketch8
pocket6.setExpression("Length", "Params.pocket6_length")
pocket6.Reversed = True

# Sketch on XZ plane
sketch9 = doc.addObject("Sketcher::SketchObject", "Sketch008")
body.addObject(sketch9)
sketch9.AttachmentSupport = (doc.XZ_Plane, [""])
sketch9.MapMode = "FlatFace"
sketch9.addGeometry(Part.Circle(App.Vector(-38, -180, 0), App.Vector(0, 0, 1), 1.6), False)
sketch9.addGeometry(Part.Circle(App.Vector(-18, -180, 0), App.Vector(0, 0, 1), 1.6), False)
sketch9.addGeometry(Part.Circle(App.Vector(90, -180, 0), App.Vector(0, 0, 1), 1.6), False)
sketch9.addGeometry(Part.Circle(App.Vector(70, -180, 0), App.Vector(0, 0, 1), 1.6), False)
sketch9.addConstraint(Sketcher.Constraint("Equal", 0, 1))
sketch9.addConstraint(Sketcher.Constraint("Equal", 1, 2))
sketch9.addConstraint(Sketcher.Constraint("Equal", 2, 3))
sketch9.addConstraint(Sketcher.Constraint("Horizontal", 0, 3, 1, 3))
sketch9.addConstraint(Sketcher.Constraint("Horizontal", 1, 3, 2, 3))
sketch9.addConstraint(Sketcher.Constraint("Horizontal", 2, 3, 3, 3))
sketch9.addConstraint(Sketcher.Constraint("Diameter", 0, Q("3.25 mm")))
sketch9.addConstraint(Sketcher.Constraint("DistanceX", 0, 3, 1, 3, Q("20 mm")))
sketch9.addConstraint(Sketcher.Constraint("DistanceX", 1, 3, 2, 3, Q("108 mm")))
sketch9.addConstraint(Sketcher.Constraint("DistanceX", 3, 3, 2, 3, Q("20 mm")))
sketch9.addConstraint(Sketcher.Constraint("DistanceX", 0, 3, -1, 1, Q("37.964739 mm")))
sketch9.addConstraint(Sketcher.Constraint("DistanceY", 0, 3, -1, 1, Q("179.987359 mm")))
sketch9.setExpression("Constraints[6]", "Params.sketch9_diameter")
pocket7 = doc.addObject("PartDesign::Pocket", "Pocket006")
body.addObject(pocket7)
pocket7.Profile = sketch9
pocket7.setExpression("Length", "Params.pocket7_length")

doc.recompute()
